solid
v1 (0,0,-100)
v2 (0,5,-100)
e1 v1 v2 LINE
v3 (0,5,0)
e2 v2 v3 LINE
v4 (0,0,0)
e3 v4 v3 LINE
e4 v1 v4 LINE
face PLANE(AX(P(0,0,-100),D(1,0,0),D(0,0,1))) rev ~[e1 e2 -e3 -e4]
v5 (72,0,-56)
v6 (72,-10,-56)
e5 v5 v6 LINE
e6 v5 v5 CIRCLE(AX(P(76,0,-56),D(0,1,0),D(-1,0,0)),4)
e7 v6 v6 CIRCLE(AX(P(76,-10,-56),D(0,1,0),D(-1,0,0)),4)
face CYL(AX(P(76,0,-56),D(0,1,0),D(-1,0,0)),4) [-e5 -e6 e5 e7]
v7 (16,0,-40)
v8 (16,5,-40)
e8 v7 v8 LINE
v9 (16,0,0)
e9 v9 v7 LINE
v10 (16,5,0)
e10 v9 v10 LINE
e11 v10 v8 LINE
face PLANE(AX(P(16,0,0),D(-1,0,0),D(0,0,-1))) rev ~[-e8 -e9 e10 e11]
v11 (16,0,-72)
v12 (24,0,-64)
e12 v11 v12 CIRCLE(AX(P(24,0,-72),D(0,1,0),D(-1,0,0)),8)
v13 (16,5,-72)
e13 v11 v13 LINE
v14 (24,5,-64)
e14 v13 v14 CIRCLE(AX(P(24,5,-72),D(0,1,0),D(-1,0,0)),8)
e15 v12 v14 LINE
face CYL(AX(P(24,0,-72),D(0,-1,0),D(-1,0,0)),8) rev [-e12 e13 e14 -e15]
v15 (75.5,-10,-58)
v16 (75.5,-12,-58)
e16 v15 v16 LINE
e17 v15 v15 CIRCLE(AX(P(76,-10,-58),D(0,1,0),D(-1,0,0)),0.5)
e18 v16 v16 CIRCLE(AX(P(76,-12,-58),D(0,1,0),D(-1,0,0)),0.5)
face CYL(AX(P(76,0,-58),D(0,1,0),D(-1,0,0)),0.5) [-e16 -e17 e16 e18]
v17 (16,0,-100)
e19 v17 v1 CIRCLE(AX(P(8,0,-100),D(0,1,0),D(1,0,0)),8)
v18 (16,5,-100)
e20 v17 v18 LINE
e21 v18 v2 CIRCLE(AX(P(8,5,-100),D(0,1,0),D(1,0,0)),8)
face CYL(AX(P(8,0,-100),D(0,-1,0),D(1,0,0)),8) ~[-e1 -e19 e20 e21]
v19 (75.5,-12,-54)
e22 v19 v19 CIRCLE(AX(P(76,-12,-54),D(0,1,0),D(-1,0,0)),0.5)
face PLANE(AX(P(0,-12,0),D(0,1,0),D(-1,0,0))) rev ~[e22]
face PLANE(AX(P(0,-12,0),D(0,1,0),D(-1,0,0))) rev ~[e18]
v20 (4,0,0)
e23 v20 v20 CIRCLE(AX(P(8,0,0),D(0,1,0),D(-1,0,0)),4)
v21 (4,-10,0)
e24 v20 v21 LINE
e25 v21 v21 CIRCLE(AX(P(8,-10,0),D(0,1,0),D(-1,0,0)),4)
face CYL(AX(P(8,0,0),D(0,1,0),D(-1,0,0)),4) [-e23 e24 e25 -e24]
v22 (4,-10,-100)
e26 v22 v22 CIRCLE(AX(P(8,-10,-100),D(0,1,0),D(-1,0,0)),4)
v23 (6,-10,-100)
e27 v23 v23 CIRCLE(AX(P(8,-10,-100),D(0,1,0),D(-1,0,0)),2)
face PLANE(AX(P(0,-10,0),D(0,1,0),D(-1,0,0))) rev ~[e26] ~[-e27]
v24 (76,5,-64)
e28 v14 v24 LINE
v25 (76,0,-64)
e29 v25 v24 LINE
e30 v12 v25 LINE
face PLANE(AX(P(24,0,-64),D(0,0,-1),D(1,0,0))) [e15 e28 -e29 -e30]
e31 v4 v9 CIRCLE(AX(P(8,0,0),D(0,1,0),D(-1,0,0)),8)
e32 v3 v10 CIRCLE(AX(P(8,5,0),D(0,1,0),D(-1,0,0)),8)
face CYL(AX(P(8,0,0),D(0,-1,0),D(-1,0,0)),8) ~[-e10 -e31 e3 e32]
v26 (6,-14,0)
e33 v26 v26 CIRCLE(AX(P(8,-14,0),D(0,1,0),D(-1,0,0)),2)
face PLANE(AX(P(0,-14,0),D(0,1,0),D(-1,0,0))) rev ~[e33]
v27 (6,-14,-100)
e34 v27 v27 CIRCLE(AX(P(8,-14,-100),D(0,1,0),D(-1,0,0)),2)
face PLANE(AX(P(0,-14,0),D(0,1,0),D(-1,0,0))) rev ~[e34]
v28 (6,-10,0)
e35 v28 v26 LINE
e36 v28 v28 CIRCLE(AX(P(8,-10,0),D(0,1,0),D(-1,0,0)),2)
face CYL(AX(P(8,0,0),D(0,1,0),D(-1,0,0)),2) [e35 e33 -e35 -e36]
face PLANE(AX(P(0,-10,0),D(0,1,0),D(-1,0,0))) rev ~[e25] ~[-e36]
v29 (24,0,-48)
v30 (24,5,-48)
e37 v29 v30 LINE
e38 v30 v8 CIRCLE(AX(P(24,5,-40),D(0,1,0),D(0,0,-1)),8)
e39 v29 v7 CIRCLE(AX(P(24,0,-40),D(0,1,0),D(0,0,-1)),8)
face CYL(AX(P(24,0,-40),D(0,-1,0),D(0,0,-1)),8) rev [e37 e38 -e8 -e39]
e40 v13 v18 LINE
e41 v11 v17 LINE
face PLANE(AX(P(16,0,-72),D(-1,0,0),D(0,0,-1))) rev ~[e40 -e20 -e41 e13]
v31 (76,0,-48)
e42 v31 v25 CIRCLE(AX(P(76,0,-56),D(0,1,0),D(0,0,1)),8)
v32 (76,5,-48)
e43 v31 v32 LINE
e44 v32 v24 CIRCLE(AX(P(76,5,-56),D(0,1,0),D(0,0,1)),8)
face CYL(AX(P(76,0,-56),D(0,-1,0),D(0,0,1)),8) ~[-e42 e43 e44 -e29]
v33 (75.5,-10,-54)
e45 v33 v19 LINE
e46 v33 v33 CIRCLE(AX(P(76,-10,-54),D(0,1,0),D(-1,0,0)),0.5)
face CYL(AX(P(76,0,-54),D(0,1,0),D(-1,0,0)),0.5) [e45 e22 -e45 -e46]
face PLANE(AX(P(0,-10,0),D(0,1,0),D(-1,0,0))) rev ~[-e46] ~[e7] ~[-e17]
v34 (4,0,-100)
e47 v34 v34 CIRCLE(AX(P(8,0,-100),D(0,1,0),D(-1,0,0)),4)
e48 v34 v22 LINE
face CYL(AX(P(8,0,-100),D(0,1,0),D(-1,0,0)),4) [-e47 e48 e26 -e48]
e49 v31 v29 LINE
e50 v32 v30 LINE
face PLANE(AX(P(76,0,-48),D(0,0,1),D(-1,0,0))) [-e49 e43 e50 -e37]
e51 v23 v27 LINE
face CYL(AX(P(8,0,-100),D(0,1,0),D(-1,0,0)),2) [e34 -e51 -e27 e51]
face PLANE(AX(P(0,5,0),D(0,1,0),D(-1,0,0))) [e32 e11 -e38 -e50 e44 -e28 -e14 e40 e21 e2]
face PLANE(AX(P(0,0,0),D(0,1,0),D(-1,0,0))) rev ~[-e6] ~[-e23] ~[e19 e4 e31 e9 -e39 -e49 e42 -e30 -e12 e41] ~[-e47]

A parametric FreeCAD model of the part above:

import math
import FreeCAD as App
import Part
import Sketcher

V = App.Vector

doc = App.newDocument("Part")
params = doc.addObject("Spreadsheet::Sheet", "Params")
for row, (alias, value) in enumerate([
    ("sketch1_radius", "8 mm"),
    ("sketch1_height", "100 mm"),
    ("pad1_length", "5 mm"),
    ("sketch2_diameter", "4 mm"),
    ("pad2_length", "14 mm"),
    ("sketch3_diameter", "1 mm"),
    ("pad3_length", "12 mm"),
    ("sketch4_diameter", "8 mm"),
    ("sketch4_diameter2", "1 mm"),
    ("pad4_length", "10 mm"),
], start=1):
    params.set(f"A{row}", alias)
    params.set(f"B{row}", "=" + value)
    params.setAlias(f"B{row}", alias)

body = doc.addObject("PartDesign::Body", "Body")

sketch1 = body.newObject("Sketcher::SketchObject", "Sketch")
sketch1.AttachmentSupport = (doc.getObject("XZ_Plane"), [""])
sketch1.MapMode = "FlatFace"
sketch1.addGeometry([
    Part.ArcOfCircle(Part.Circle(V(8, -100, 0), V(0, 0, 1), 8), math.radians(180), math.radians(360)),
    Part.LineSegment(V(0, -100, 0), V(0, 0, 0)),
    Part.ArcOfCircle(Part.Circle(V(8, 0, 0), V(0, 0, 1), 8), math.radians(0), math.radians(180)),
    Part.LineSegment(V(16, 0, 0), V(16, -40, 0)),
    Part.ArcOfCircle(Part.Circle(V(24, -40, 0), V(0, 0, 1), 8), math.radians(180), math.radians(270)),
    Part.LineSegment(V(24, -48, 0), V(76, -48, 0)),
    Part.ArcOfCircle(Part.Circle(V(76, -56, 0), V(0, 0, 1), 8), math.radians(-90), math.radians(90)),
    Part.LineSegment(V(76, -64, 0), V(24, -64, 0)),
    Part.ArcOfCircle(Part.Circle(V(24, -72, 0), V(0, 0, 1), 8), math.radians(90), math.radians(180)),
    Part.LineSegment(V(16, -72, 0), V(16, -100, 0)),
], False)
sketch1.addConstraint([
    Sketcher.Constraint("Tangent", 0, 1, 1, 1),
    Sketcher.Constraint("Tangent", 1, 2, 2, 2),
    Sketcher.Constraint("Tangent", 2, 1, 3, 1),
    Sketcher.Constraint("Tangent", 3, 2, 4, 1),
    Sketcher.Constraint("Tangent", 4, 2, 5, 1),
    Sketcher.Constraint("Tangent", 5, 2, 6, 2),
    Sketcher.Constraint("Tangent", 6, 1, 7, 1),
    Sketcher.Constraint("Tangent", 7, 2, 8, 1),
    Sketcher.Constraint("Tangent", 8, 2, 9, 1),
    Sketcher.Constraint("Tangent", 9, 2, 0, 2),
    Sketcher.Constraint("Vertical", 1),
    Sketcher.Constraint("Vertical", 3),
    Sketcher.Constraint("Horizontal", 5),
    Sketcher.Constraint("Horizontal", 7),
    Sketcher.Constraint("Vertical", 9),
    Sketcher.Constraint("Coincident", 1, 2, -1, 1),
    Sketcher.Constraint("Equal", 0, 2),
    Sketcher.Constraint("Equal", 2, 4),
    Sketcher.Constraint("Equal", 4, 6),
    Sketcher.Constraint("Equal", 6, 8),
    Sketcher.Constraint("Radius", 0, 8.0),
    Sketcher.Constraint("DistanceY", 1, 1, 1, 2, 100.0),
    Sketcher.Constraint("DistanceY", 0, 3, 4, 3, 60.0),
    Sketcher.Constraint("DistanceX", 2, 1, 6, 3, 60.0),
])
sketch1.setExpression("Constraints[20]", "Params.sketch1_radius")
sketch1.setExpression("Constraints[21]", "Params.sketch1_height")
pad1 = body.newObject("PartDesign::Pad", "Pad")
pad1.Profile = sketch1
pad1.setExpression("Length", "Params.pad1_length")
pad1.Reversed = True

sketch2 = body.newObject("Sketcher::SketchObject", "Sketch001")
sketch2.AttachmentSupport = (doc.getObject("XZ_Plane"), [""])
sketch2.MapMode = "FlatFace"
sketch2.addGeometry([
    Part.Circle(V(8, -100, 0), V(0, 0, 1), 2),
    Part.Circle(V(8, 0, 0), V(0, 0, 1), 2),
], False)
sketch2.addConstraint([
    Sketcher.Constraint("Equal", 0, 1),
    Sketcher.Constraint("PointOnObject", 1, 3, -1),
    Sketcher.Constraint("Vertical", 0, 3, 1, 3),
    Sketcher.Constraint("Diameter", 0, 4.0),
    Sketcher.Constraint("DistanceX", -1, 1, 0, 3, 8.0),
    Sketcher.Constraint("DistanceY", 0, 3, -1, 1, 100.0),
])
sketch2.setExpression("Constraints[3]", "Params.sketch2_diameter")
pad2 = body.newObject("PartDesign::Pad", "Pad001")
pad2.Profile = sketch2
pad2.setExpression("Length", "Params.pad2_length")

sketch3 = body.newObject("Sketcher::SketchObject", "Sketch002")
sketch3.AttachmentSupport = (doc.getObject("XZ_Plane"), [""])
sketch3.MapMode = "FlatFace"
sketch3.addGeometry([
    Part.Circle(V(76, -58, 0), V(0, 0, 1), 0.5),
    Part.Circle(V(76, -54, 0), V(0, 0, 1), 0.5),
], False)
sketch3.addConstraint([
    Sketcher.Constraint("Equal", 0, 1),
    Sketcher.Constraint("Vertical", 0, 3, 1, 3),
    Sketcher.Constraint("Diameter", 0, 1.0),
    Sketcher.Constraint("DistanceY", 0, 3, 1, 3, 4.0),
    Sketcher.Constraint("DistanceX", -1, 1, 0, 3, 76.0),
    Sketcher.Constraint("DistanceY", 0, 3, -1, 1, 58.0),
])
sketch3.setExpression("Constraints[2]", "Params.sketch3_diameter")
pad3 = body.newObject("PartDesign::Pad", "Pad002")
pad3.Profile = sketch3
pad3.setExpression("Length", "Params.pad3_length")

sketch4 = body.newObject("Sketcher::SketchObject", "Sketch003")
sketch4.AttachmentSupport = (doc.getObject("XZ_Plane"), [""])
sketch4.MapMode = "FlatFace"
sketch4.addGeometry([
    Part.Circle(V(8, 0, 0), V(0, 0, 1), 4),
    Part.Circle(V(8, -100, 0), V(0, 0, 1), 4),
    Part.Circle(V(76, -56, 0), V(0, 0, 1), 4),
    Part.Circle(V(76, -58, 0), V(0, 0, 1), 0.5),
    Part.Circle(V(76, -54, 0), V(0, 0, 1), 0.5),
], False)
sketch4.addConstraint([
    Sketcher.Constraint("Equal", 0, 1),
    Sketcher.Constraint("Equal", 1, 2),
    Sketcher.Constraint("Equal", 3, 4),
    Sketcher.Constraint("PointOnObject", 0, 3, -1),
    Sketcher.Constraint("Vertical", 0, 3, 1, 3),
    Sketcher.Constraint("Vertical", 2, 3, 3, 3),
    Sketcher.Constraint("Vertical", 3, 3, 4, 3),
    Sketcher.Constraint("Diameter", 0, 8.0),
    Sketcher.Constraint("Diameter", 3, 1.0),
    Sketcher.Constraint("DistanceX", -1, 1, 0, 3, 8.0),
    Sketcher.Constraint("DistanceY", 1, 3, -1, 1, 100.0),
    Sketcher.Constraint("DistanceY", 3, 3, 2, 3, 2.0),
    Sketcher.Constraint("DistanceY", 2, 3, 4, 3, 2.0),
    Sketcher.Constraint("DistanceX", -1, 1, 2, 3, 76.0),
    Sketcher.Constraint("DistanceY", 2, 3, -1, 1, 56.0),
])
sketch4.setExpression("Constraints[7]", "Params.sketch4_diameter")
sketch4.setExpression("Constraints[8]", "Params.sketch4_diameter2")
pad4 = body.newObject("PartDesign::Pad", "Pad003")
pad4.Profile = sketch4
pad4.setExpression("Length", "Params.pad4_length")

doc.recompute()
